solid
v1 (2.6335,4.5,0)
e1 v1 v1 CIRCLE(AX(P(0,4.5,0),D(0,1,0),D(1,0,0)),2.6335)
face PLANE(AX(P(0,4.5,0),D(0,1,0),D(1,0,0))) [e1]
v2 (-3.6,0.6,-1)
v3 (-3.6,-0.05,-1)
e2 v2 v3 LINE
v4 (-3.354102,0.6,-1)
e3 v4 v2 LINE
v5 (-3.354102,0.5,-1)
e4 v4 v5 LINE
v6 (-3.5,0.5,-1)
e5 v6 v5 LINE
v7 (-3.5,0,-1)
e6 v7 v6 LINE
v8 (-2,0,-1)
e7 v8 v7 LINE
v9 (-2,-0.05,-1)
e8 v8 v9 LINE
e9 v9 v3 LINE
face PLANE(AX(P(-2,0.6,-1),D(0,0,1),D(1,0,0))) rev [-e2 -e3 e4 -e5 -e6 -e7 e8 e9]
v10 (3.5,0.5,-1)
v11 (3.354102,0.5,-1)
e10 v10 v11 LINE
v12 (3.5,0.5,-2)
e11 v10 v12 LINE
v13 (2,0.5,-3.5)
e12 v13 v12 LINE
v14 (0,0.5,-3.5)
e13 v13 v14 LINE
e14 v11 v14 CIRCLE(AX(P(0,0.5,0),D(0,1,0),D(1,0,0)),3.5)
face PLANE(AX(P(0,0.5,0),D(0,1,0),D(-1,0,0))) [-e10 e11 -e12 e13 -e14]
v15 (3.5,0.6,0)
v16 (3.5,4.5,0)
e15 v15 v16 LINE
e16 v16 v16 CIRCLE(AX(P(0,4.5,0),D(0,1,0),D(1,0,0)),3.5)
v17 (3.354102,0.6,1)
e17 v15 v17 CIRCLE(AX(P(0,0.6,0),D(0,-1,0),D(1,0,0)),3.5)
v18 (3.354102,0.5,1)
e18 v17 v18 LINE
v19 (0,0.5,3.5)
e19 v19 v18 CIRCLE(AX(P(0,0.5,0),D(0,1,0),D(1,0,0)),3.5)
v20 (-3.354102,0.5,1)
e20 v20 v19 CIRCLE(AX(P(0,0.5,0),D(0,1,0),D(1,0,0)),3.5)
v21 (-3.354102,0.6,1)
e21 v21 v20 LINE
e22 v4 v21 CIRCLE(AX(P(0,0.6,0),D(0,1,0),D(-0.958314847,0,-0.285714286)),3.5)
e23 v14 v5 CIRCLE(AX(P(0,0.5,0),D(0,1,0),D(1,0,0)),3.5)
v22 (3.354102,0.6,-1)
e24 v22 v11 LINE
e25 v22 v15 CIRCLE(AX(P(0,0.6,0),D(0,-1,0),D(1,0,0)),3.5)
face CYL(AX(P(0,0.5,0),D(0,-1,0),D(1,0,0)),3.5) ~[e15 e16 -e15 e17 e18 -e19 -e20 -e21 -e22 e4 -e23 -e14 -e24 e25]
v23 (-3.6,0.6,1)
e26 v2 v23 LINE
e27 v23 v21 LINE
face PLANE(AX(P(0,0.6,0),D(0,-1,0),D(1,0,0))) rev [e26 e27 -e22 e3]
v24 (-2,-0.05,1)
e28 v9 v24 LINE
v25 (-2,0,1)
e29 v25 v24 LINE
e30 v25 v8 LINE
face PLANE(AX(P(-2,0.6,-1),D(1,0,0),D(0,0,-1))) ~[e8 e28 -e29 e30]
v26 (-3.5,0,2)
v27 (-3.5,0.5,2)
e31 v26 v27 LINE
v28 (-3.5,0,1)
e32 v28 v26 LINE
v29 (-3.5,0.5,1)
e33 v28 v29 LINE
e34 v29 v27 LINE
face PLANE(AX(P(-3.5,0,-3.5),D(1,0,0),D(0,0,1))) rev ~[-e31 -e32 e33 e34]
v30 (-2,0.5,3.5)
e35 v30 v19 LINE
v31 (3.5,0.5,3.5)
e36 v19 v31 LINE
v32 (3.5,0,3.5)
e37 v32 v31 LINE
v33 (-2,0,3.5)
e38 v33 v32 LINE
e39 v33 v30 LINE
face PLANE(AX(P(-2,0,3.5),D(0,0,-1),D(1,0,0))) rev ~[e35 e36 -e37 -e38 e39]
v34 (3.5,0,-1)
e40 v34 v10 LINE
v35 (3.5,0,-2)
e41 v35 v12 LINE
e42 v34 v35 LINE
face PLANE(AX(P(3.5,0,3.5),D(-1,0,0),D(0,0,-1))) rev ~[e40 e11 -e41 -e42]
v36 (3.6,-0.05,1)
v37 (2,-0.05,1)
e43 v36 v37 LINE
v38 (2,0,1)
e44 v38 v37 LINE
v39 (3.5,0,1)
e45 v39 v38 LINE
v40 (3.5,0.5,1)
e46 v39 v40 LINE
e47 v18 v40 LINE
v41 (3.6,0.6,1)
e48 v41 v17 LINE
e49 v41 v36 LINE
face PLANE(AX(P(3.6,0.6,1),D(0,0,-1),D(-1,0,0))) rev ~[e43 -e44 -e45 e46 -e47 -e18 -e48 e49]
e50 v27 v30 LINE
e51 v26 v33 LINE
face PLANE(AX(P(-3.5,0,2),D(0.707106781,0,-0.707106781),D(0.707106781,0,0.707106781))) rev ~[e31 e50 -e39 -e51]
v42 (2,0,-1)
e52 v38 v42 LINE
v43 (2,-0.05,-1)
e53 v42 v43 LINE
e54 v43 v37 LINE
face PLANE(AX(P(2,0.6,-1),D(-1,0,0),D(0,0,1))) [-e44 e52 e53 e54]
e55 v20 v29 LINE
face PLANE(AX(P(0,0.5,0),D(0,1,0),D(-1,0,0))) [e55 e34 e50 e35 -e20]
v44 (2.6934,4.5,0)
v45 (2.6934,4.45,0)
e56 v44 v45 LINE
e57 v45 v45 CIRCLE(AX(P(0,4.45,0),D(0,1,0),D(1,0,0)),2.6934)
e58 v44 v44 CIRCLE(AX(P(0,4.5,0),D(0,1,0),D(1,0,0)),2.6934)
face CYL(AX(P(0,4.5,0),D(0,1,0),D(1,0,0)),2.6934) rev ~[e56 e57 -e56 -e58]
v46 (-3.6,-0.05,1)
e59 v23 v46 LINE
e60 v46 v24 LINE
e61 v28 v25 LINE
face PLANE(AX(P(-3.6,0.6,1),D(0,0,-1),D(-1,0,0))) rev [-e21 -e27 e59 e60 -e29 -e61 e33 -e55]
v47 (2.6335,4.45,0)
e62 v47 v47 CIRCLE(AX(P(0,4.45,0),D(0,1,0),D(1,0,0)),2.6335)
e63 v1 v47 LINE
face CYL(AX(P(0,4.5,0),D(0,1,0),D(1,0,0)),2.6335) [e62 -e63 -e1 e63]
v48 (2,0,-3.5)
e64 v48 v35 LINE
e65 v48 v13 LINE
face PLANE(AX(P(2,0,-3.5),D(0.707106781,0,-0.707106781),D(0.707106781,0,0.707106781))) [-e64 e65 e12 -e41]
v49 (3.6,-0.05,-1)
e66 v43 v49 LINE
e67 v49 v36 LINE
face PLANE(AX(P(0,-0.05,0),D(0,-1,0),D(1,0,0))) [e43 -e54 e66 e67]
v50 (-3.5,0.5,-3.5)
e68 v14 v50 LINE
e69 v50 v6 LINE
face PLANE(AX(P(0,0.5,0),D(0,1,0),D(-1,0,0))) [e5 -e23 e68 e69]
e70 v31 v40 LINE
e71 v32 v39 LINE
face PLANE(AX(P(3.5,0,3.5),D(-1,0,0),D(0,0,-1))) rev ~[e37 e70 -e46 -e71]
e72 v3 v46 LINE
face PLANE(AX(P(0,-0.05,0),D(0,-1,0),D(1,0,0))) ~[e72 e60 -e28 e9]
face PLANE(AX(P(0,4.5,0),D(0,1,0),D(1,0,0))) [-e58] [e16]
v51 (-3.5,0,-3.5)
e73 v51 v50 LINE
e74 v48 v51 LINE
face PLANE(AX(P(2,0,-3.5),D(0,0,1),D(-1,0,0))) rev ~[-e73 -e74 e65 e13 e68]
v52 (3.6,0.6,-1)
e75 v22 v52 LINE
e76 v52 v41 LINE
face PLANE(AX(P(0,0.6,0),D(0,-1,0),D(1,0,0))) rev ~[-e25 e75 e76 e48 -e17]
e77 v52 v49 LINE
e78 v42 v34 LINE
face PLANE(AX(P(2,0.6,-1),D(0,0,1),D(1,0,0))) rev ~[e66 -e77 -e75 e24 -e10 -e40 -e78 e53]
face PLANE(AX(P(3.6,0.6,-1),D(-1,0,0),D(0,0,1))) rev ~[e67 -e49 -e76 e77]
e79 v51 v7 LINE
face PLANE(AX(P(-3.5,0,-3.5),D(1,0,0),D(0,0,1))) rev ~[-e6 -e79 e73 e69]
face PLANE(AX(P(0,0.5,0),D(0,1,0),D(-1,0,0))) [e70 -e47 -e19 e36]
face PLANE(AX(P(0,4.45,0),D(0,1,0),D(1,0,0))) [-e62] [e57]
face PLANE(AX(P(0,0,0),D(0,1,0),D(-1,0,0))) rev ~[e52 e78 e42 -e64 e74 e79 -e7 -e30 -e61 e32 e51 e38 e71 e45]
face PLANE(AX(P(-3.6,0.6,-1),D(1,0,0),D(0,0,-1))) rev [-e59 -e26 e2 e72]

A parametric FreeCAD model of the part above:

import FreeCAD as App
import Part
import Sketcher
from FreeCAD import Vector
Q = App.Units.Quantity

doc = App.newDocument("Part")
params = doc.addObject("Spreadsheet::Sheet", "Params")
for row, (alias, value) in enumerate([
    ("sketch1_width", "5.5 mm"),
    ("pad1_length", "0.5 mm"),
    ("sketch2_diameter", "7 mm"),
    ("pad2_length", "4 mm"),
    ("pocket1_length", "0.05 mm"),
    ("sketch4_height", "2 mm"),
    ("sketch4_width", "1.5 mm"),
    ("pocket2_length", "0.6 mm"),
    ("sketch5_height", "2 mm"),
    ("sketch5_width", "1.6 mm"),
    ("pad3_length", "0.65 mm"),
], start=1):
    params.set(f"A{row}", alias)
    params.set(f"B{row}", "=" + value)
    params.setAlias(f"B{row}", alias)

body = doc.addObject("PartDesign::Body", "Body")

# Sketch on XZ plane
sketch1 = doc.addObject("Sketcher::SketchObject", "Sketch")
body.addObject(sketch1)
sketch1.AttachmentSupport = (doc.XZ_Plane, [""])
sketch1.MapMode = "FlatFace"
sketch1.addGeometry(Part.LineSegment(Vector(-3.5, 2, 0), Vector(-2, 3.5, 0)), False)
sketch1.addGeometry(Part.LineSegment(Vector(-2, 3.5, 0), Vector(3.5, 3.5, 0)), False)
sketch1.addGeometry(Part.LineSegment(Vector(3.5, 3.5, 0), Vector(3.5, -2, 0)), False)
sketch1.addGeometry(Part.LineSegment(Vector(3.5, -2, 0), Vector(2, -3.5, 0)), False)
sketch1.addGeometry(Part.LineSegment(Vector(2, -3.5, 0), Vector(-3.5, -3.5, 0)), False)
sketch1.addGeometry(Part.LineSegment(Vector(-3.5, -3.5, 0), Vector(-3.5, 2, 0)), False)
sketch1.addConstraint(Sketcher.Constraint("Coincident", 0, 2, 1, 1))
sketch1.addConstraint(Sketcher.Constraint("Coincident", 1, 2, 2, 1))
sketch1.addConstraint(Sketcher.Constraint("Coincident", 2, 2, 3, 1))
sketch1.addConstraint(Sketcher.Constraint("Coincident", 3, 2, 4, 1))
sketch1.addConstraint(Sketcher.Constraint("Coincident", 4, 2, 5, 1))
sketch1.addConstraint(Sketcher.Constraint("Coincident", 5, 2, 0, 1))
sketch1.addConstraint(Sketcher.Constraint("Horizontal", 1))
sketch1.addConstraint(Sketcher.Constraint("Vertical", 2))
sketch1.addConstraint(Sketcher.Constraint("Horizontal", 4))
sketch1.addConstraint(Sketcher.Constraint("Vertical", 5))
sketch1.addConstraint(Sketcher.Constraint("Symmetric", 0, 2, 3, 2, -1, 1))
sketch1.addConstraint(Sketcher.Constraint("Symmetric", 2, 2, 5, 2, -1, 1))
sketch1.addConstraint(Sketcher.Constraint("Equal", 4, 2))
sketch1.addConstraint(Sketcher.Constraint("Angle", 0, Q("45 deg")))
sketch1.addConstraint(Sketcher.Constraint("DistanceX", 1, 1, 1, 2, Q("5.5 mm")))
sketch1.addConstraint(Sketcher.Constraint("DistanceY", 3, 2, 1, 2, Q("7 mm")))
sketch1.setExpression("Constraints[14]", "Params.sketch1_width")
pad1 = doc.addObject("PartDesign::Pad", "Pad")
body.addObject(pad1)
pad1.Profile = sketch1
pad1.setExpression("Length", "Params.pad1_length")
pad1.Reversed = True

# Sketch on XZ plane
sketch2 = doc.addObject("Sketcher::SketchObject", "Sketch001")
body.addObject(sketch2)
sketch2.AttachmentSupport = (doc.XZ_Plane, [""])
sketch2.MapMode = "FlatFace"
sketch2.AttachmentOffset = App.Placement(Vector(0, 0, -0.5), App.Rotation())
sketch2.addGeometry(Part.Circle(Vector(0, 0, 0), Vector(0, 0, 1), 3.5), False)
sketch2.addConstraint(Sketcher.Constraint("Coincident", 0, 3, -1, 1))
sketch2.addConstraint(Sketcher.Constraint("Diameter", 0, Q("7 mm")))
sketch2.setExpression("Constraints[1]", "Params.sketch2_diameter")
pad2 = doc.addObject("PartDesign::Pad", "Pad001")
body.addObject(pad2)
pad2.Profile = sketch2
pad2.setExpression("Length", "Params.pad2_length")
pad2.Reversed = True

# Sketch on XZ plane
sketch3 = doc.addObject("Sketcher::SketchObject", "Sketch002")
body.addObject(sketch3)
sketch3.AttachmentSupport = (doc.XZ_Plane, [""])
sketch3.MapMode = "FlatFace"
sketch3.AttachmentOffset = App.Placement(Vector(0, 0, -4.5), App.Rotation())
sketch3.addGeometry(Part.Circle(Vector(0, 0, 0), Vector(0, 0, 1), 2.7), False)
sketch3.addGeometry(Part.Circle(Vector(0, 0, 0), Vector(0, 0, 1), 2.6), False)
sketch3.addConstraint(Sketcher.Constraint("Coincident", 0, 3, -1, 1))
sketch3.addConstraint(Sketcher.Constraint("Coincident", 1, 3, -1, 1))
sketch3.addConstraint(Sketcher.Constraint("Diameter", 1, Q("5.267 mm")))
sketch3.addConstraint(Sketcher.Constraint("Diameter", 0, Q("5.3868 mm")))
pocket1 = doc.addObject("PartDesign::Pocket", "Pocket")
body.addObject(pocket1)
pocket1.Profile = sketch3
pocket1.setExpression("Length", "Params.pocket1_length")
pocket1.Reversed = True

# Sketch on XZ plane
sketch4 = doc.addObject("Sketcher::SketchObject", "Sketch003")
body.addObject(sketch4)
sketch4.AttachmentSupport = (doc.XZ_Plane, [""])
sketch4.MapMode = "FlatFace"
sketch4.addGeometry(Part.LineSegment(Vector(3.5, -1, 0), Vector(3.5, 1, 0)), False)
sketch4.addGeometry(Part.LineSegment(Vector(3.5, 1, 0), Vector(2, 1, 0)), False)
sketch4.addGeometry(Part.LineSegment(Vector(2, 1, 0), Vector(2, -1, 0)), False)
sketch4.addGeometry(Part.LineSegment(Vector(2, -1, 0), Vector(3.5, -1, 0)), False)
sketch4.addConstraint(Sketcher.Constraint("Coincident", 0, 2, 1, 1))
sketch4.addConstraint(Sketcher.Constraint("Coincident", 1, 2, 2, 1))
sketch4.addConstraint(Sketcher.Constraint("Coincident", 2, 2, 3, 1))
sketch4.addConstraint(Sketcher.Constraint("Coincident", 3, 2, 0, 1))
sketch4.addConstraint(Sketcher.Constraint("Vertical", 0))
sketch4.addConstraint(Sketcher.Constraint("Horizontal", 1))
sketch4.addConstraint(Sketcher.Constraint("Vertical", 2))
sketch4.addConstraint(Sketcher.Constraint("Horizontal", 3))
sketch4.addConstraint(Sketcher.Constraint("DistanceY", 0, 1, 0, 2, Q("2 mm")))
sketch4.addConstraint(Sketcher.Constraint("DistanceX", 1, 2, 1, 1, Q("1.5 mm")))
sketch4.addConstraint(Sketcher.Constraint("DistanceX", -1, 1, 1, 2, Q("2 mm")))
sketch4.addConstraint(Sketcher.Constraint("DistanceY", -1, 1, 0, 2, Q("1 mm")))
sketch4.setExpression("Constraints[8]", "Params.sketch4_height")
sketch4.setExpression("Constraints[9]", "Params.sketch4_width")
pocket2 = doc.addObject("PartDesign::Pocket", "Pocket001")
body.addObject(pocket2)
pocket2.Profile = sketch4
pocket2.setExpression("Length", "Params.pocket2_length")

# Sketch on XZ plane
sketch5 = doc.addObject("Sketcher::SketchObject", "Sketch004")
body.addObject(sketch5)
sketch5.AttachmentSupport = (doc.XZ_Plane, [""])
sketch5.MapMode = "FlatFace"
sketch5.AttachmentOffset = App.Placement(Vector(0, 0, -0.6), App.Rotation())
sketch5.addGeometry(Part.LineSegment(Vector(2, 1, 0), Vector(2, -1, 0)), False)
sketch5.addGeometry(Part.LineSegment(Vector(2, -1, 0), Vector(3.6, -1, 0)), False)
sketch5.addGeometry(Part.LineSegment(Vector(3.6, -1, 0), Vector(3.6, 1, 0)), False)
sketch5.addGeometry(Part.LineSegment(Vector(3.6, 1, 0), Vector(2, 1, 0)), False)
sketch5.addConstraint(Sketcher.Constraint("Coincident", 0, 2, 1, 1))
sketch5.addConstraint(Sketcher.Constraint("Coincident", 1, 2, 2, 1))
sketch5.addConstraint(Sketcher.Constraint("Coincident", 2, 2, 3, 1))
sketch5.addConstraint(Sketcher.Constraint("Coincident", 3, 2, 0, 1))
sketch5.addConstraint(Sketcher.Constraint("Vertical", 0))
sketch5.addConstraint(Sketcher.Constraint("Horizontal", 1))
sketch5.addConstraint(Sketcher.Constraint("Vertical", 2))
sketch5.addConstraint(Sketcher.Constraint("Horizontal", 3))
sketch5.addConstraint(Sketcher.Constraint("DistanceY", 0, 2, 0, 1, Q("2 mm")))
sketch5.addConstraint(Sketcher.Constraint("DistanceX", 1, 1, 1, 2, Q("1.6 mm")))
sketch5.addConstraint(Sketcher.Constraint("DistanceX", -1, 1, 0, 2, Q("2 mm")))
sketch5.addConstraint(Sketcher.Constraint("DistanceY", 0, 2, -1, 1, Q("1 mm")))
sketch5.setExpression("Constraints[8]", "Params.sketch5_height")
sketch5.setExpression("Constraints[9]", "Params.sketch5_width")
pad3 = doc.addObject("PartDesign::Pad", "Pad002")
body.addObject(pad3)
pad3.Profile = sketch5
pad3.setExpression("Length", "Params.pad3_length")
doc.recompute()

mirrored = doc.addObject("PartDesign::Mirrored", "Mirrored")
body.addObject(mirrored)
mirrored.Originals = [pocket2]
mirrored.MirrorPlane = (doc.YZ_Plane, [""])
body.Tip = mirrored
doc.recompute()

mirrored2 = doc.addObject("PartDesign::Mirrored", "Mirrored001")
body.addObject(mirrored2)
mirrored2.Originals = [pad3]
mirrored2.MirrorPlane = (doc.YZ_Plane, [""])
body.Tip = mirrored2

doc.recompute()
